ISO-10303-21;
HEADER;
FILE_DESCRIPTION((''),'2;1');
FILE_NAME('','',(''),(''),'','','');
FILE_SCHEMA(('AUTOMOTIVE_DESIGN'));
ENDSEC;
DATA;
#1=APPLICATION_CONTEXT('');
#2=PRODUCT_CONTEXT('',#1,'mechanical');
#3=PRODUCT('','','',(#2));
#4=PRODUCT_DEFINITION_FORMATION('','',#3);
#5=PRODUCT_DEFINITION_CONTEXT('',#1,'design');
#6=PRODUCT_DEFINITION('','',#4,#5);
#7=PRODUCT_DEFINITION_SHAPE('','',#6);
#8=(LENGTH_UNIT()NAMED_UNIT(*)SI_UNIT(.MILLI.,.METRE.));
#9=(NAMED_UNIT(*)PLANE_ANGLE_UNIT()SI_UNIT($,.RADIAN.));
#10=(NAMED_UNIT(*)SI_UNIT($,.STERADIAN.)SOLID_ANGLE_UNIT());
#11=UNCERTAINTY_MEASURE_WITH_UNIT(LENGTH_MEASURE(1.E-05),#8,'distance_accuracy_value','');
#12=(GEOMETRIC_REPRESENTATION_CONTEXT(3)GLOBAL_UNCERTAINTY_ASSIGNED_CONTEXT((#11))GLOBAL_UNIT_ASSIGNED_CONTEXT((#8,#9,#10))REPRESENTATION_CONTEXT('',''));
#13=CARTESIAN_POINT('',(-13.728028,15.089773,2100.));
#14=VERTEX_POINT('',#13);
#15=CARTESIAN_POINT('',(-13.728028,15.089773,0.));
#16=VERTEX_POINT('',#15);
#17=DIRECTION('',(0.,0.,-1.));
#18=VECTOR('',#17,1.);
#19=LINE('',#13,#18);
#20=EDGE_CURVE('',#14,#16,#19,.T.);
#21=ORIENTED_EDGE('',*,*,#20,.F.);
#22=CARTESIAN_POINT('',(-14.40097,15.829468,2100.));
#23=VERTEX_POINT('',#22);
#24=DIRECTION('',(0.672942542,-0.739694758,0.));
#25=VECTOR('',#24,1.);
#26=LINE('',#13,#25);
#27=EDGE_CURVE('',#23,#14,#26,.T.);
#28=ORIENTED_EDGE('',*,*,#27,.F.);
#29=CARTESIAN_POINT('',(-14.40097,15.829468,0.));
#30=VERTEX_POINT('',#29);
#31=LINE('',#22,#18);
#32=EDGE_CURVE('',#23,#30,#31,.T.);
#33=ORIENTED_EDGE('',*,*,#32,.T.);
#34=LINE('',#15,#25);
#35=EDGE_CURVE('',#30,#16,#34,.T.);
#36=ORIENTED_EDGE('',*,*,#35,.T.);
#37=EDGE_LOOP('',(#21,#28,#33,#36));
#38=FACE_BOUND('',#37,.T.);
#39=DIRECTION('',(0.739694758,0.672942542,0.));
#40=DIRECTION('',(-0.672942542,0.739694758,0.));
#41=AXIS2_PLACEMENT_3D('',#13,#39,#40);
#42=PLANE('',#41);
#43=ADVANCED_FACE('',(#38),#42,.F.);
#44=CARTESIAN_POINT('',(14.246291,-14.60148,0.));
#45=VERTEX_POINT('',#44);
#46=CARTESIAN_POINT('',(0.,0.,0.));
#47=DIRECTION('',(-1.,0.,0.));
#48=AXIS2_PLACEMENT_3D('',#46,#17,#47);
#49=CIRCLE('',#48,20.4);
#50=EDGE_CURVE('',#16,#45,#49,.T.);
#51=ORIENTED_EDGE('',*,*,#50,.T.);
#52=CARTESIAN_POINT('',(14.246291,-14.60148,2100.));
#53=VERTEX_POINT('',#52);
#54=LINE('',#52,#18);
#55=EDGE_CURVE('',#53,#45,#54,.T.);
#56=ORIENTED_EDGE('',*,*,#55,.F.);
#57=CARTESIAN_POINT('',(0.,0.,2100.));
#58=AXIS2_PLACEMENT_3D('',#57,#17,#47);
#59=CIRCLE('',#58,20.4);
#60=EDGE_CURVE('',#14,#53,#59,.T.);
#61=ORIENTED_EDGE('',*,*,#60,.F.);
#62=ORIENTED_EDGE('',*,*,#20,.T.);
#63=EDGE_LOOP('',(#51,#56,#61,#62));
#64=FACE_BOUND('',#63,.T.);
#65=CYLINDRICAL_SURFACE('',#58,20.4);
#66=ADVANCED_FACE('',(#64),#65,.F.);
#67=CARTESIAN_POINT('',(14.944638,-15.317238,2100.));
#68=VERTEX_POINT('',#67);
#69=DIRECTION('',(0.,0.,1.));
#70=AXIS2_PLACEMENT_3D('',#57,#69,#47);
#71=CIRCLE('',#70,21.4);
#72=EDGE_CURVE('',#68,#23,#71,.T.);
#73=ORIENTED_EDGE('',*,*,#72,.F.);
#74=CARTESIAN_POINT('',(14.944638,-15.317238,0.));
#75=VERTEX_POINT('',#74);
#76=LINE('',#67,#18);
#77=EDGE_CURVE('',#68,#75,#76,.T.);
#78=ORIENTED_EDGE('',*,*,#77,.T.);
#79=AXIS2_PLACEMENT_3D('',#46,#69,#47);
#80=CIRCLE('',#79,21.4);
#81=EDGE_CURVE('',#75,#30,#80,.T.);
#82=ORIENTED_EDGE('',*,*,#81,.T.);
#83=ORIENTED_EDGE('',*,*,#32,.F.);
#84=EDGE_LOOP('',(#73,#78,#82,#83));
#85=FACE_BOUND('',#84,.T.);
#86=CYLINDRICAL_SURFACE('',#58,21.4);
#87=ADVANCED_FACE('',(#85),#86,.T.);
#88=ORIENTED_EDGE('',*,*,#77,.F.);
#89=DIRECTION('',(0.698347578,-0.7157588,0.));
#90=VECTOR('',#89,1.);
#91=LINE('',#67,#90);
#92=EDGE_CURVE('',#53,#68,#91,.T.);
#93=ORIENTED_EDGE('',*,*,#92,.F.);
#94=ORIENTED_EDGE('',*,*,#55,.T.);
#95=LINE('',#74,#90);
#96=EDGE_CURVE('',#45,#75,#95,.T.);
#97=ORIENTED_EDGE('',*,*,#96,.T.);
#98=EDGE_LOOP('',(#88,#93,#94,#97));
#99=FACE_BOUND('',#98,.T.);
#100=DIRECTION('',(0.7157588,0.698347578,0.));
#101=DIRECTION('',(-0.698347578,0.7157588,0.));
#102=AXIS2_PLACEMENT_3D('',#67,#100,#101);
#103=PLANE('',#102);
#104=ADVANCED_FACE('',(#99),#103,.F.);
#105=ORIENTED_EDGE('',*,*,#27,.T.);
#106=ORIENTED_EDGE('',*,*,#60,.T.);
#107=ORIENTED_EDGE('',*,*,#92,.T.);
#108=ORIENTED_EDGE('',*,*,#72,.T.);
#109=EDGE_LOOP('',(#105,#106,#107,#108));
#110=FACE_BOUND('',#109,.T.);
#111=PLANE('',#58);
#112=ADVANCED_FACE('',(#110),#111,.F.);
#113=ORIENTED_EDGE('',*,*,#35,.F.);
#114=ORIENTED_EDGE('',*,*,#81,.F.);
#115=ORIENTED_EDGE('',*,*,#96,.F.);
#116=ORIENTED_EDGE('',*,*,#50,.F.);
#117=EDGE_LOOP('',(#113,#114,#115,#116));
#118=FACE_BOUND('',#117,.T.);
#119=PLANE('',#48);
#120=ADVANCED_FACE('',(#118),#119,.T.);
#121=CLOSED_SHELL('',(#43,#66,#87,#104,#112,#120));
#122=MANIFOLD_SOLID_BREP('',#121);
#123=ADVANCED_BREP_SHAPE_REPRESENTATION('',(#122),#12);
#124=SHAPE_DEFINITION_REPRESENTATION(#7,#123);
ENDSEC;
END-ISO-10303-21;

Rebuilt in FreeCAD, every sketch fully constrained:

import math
import FreeCAD as App
import Part
import Sketcher
from FreeCAD import Vector
Q = App.Units.Quantity

doc = App.newDocument("Part")
body = doc.addObject("PartDesign::Body", "Body")

sketch1 = body.newObject("Sketcher::SketchObject", "Sketch")
sketch1.AttachmentSupport = (doc.getObject("XY_Plane"), [""])
sketch1.MapMode = "FlatFace"
sketch1.addGeometry([
    Part.LineSegment(Vector(14.2, -14.6, 0), Vector(14.9, -15.3, 0)),
    Part.ArcOfCircle(Part.Circle(Vector(0, 0, 0), Vector(0, 0, 1), 21.4), math.radians(-46), math.radians(132)),
    Part.LineSegment(Vector(-14.4, 15.8, 0), Vector(-13.7, 15.1, 0)),
    Part.ArcOfCircle(Part.Circle(Vector(0, 0, 0), Vector(0, 0, 1), 20.4), math.radians(-46), math.radians(132)),
], False)
sketch1.addConstraint([
    Sketcher.Constraint("Coincident", 0, 2, 1, 1),
    Sketcher.Constraint("Coincident", 1, 2, 2, 1),
    Sketcher.Constraint("Coincident", 2, 2, 3, 2),
    Sketcher.Constraint("Coincident", 3, 1, 0, 1),
    Sketcher.Constraint("Coincident", 1, 3, -1, 1),
    Sketcher.Constraint("Coincident", 3, 3, -1, 1),
    Sketcher.Constraint("Radius", 1, Q("21.4 mm")),
    Sketcher.Constraint("Radius", 3, Q("20.4 mm")),
    Sketcher.Constraint("DistanceX", -1, 1, 0, 2, Q("14.944638 mm")),
    Sketcher.Constraint("DistanceX", 1, 2, -1, 1, Q("14.40097 mm")),
    Sketcher.Constraint("DistanceX", -1, 1, 3, 1, Q("14.246291 mm")),
    Sketcher.Constraint("DistanceY", 0, 2, 2, 2, Q("30.407011 mm")),
])
pad1 = body.newObject("PartDesign::Pad", "Pad")
pad1.Profile = sketch1
pad1.Length = 2100

doc.recompute()
